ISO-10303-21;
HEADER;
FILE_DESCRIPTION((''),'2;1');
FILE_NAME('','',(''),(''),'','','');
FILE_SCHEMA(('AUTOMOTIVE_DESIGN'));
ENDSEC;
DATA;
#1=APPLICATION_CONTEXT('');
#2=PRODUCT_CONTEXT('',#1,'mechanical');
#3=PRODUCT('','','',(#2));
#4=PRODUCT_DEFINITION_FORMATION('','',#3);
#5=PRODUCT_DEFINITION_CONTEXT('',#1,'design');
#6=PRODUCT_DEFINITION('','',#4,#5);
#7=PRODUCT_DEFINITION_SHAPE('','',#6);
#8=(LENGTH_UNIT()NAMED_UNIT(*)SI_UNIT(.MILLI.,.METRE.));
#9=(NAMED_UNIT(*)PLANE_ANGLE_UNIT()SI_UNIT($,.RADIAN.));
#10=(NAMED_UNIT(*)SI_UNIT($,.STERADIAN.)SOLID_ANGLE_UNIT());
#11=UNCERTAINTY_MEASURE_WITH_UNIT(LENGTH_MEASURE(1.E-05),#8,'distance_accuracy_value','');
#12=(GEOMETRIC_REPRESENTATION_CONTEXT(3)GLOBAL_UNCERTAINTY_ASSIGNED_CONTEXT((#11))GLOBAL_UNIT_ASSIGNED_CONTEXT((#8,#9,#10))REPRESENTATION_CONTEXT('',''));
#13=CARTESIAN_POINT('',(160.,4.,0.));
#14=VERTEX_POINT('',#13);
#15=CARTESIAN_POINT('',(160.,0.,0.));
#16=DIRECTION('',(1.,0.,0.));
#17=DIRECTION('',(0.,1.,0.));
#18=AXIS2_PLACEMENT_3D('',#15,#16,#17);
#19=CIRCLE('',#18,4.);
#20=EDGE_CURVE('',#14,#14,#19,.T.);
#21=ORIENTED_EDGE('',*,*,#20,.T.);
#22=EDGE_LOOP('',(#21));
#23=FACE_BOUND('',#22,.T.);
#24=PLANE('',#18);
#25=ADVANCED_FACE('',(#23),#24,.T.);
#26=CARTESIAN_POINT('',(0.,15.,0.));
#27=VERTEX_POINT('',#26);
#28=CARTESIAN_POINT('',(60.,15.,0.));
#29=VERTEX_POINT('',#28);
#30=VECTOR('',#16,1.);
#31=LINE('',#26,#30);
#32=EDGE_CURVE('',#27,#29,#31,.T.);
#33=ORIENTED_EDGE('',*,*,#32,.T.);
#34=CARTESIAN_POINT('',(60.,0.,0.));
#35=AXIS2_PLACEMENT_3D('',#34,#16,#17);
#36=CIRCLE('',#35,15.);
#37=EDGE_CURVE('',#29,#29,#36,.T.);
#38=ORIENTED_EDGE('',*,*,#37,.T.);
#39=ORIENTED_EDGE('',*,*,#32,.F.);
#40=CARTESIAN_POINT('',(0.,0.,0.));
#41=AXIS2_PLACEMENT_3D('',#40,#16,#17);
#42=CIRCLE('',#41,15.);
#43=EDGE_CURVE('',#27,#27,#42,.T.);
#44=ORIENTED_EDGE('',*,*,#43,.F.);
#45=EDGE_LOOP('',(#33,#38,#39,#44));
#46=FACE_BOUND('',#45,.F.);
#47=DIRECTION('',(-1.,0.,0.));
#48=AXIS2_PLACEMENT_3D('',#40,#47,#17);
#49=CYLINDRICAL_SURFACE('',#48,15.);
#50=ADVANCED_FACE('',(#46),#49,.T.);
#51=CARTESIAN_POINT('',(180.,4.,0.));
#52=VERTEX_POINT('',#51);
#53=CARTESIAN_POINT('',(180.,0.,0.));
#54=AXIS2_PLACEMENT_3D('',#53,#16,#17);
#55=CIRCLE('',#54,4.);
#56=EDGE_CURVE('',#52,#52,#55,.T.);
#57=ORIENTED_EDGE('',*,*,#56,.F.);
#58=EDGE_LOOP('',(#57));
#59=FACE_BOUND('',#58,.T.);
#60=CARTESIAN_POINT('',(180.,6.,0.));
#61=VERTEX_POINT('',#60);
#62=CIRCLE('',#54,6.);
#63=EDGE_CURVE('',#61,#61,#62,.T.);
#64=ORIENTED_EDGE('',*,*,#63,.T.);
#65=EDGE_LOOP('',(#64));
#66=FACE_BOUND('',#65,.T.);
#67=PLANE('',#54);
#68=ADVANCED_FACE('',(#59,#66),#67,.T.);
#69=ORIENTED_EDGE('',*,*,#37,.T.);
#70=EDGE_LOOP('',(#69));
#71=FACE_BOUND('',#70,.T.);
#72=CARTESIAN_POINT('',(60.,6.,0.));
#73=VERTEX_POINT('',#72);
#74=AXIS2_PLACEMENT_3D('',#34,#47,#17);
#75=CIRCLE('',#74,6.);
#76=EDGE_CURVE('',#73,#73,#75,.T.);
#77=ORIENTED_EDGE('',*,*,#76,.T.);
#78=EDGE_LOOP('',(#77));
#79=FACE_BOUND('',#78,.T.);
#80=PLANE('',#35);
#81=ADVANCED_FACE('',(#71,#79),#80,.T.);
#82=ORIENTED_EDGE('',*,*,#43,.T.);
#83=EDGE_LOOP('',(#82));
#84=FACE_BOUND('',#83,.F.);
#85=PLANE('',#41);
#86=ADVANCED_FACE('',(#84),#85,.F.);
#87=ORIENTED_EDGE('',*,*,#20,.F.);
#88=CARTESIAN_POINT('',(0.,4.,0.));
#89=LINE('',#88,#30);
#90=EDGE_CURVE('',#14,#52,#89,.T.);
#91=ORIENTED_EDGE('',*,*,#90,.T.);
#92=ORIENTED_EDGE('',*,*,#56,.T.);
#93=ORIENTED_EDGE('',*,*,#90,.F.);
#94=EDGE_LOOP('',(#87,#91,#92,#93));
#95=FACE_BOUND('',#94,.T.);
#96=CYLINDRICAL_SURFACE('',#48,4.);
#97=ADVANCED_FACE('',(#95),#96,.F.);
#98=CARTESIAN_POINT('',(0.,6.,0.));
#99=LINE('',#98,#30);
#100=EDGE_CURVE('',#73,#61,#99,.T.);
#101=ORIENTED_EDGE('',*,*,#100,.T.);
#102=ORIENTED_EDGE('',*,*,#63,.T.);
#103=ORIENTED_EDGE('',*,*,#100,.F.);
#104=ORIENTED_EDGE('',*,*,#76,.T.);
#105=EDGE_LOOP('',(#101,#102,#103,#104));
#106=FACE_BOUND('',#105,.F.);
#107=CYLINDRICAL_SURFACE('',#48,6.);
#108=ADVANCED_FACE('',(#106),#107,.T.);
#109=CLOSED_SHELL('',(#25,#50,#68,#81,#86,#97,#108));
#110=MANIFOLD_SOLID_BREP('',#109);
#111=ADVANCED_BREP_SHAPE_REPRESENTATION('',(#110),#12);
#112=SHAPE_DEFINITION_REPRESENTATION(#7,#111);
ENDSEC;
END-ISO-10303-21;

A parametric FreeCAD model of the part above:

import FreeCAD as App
import Part
import Sketcher
Q = App.Units.Quantity

doc = App.newDocument("Part")
body = doc.addObject("PartDesign::Body", "Body")

sketch1 = body.newObject("Sketcher::SketchObject", "Sketch")
sketch1.AttachmentSupport = (doc.getObject("YZ_Plane"), [""])
sketch1.MapMode = "FlatFace"
sketch1.addGeometry(Part.Circle(App.Vector(0, 0, 0), App.Vector(0, 0, 1), 15), False)
sketch1.addConstraint(Sketcher.Constraint("Coincident", 0, 3, -1, 1))
sketch1.addConstraint(Sketcher.Constraint("Diameter", 0, Q("30 mm")))
pad1 = body.newObject("PartDesign::Pad", "Pad")
pad1.Profile = sketch1
pad1.Length = 60

sketch2 = body.newObject("Sketcher::SketchObject", "Sketch001")
sketch2.AttachmentSupport = (doc.getObject("YZ_Plane"), [""])
sketch2.MapMode = "FlatFace"
sketch2.addGeometry(Part.Circle(App.Vector(0, 0, 0), App.Vector(0, 0, 1), 6), False)
sketch2.addGeometry(Part.Circle(App.Vector(0, 0, 0), App.Vector(0, 0, 1), 4), False)
sketch2.addConstraint(Sketcher.Constraint("Coincident", 0, 3, -1, 1))
sketch2.addConstraint(Sketcher.Constraint("Coincident", 1, 3, -1, 1))
sketch2.addConstraint(Sketcher.Constraint("Diameter", 0, Q("12 mm")))
sketch2.addConstraint(Sketcher.Constraint("Diameter", 1, Q("8 mm")))
pad2 = body.newObject("PartDesign::Pad", "Pad001")
pad2.Profile = sketch2
pad2.Length = 180

sketch3 = body.newObject("Sketcher::SketchObject", "Sketch002")
sketch3.AttachmentSupport = (doc.getObject("YZ_Plane"), [""])
sketch3.MapMode = "FlatFace"
sketch3.addGeometry(Part.Circle(App.Vector(0, 0, 0), App.Vector(0, 0, 1), 4), False)
sketch3.addConstraint(Sketcher.Constraint("Coincident", 0, 3, -1, 1))
sketch3.addConstraint(Sketcher.Constraint("Diameter", 0, Q("8 mm")))
pad3 = body.newObject("PartDesign::Pad", "Pad002")
pad3.Profile = sketch3
pad3.Length = 160

doc.recompute()
